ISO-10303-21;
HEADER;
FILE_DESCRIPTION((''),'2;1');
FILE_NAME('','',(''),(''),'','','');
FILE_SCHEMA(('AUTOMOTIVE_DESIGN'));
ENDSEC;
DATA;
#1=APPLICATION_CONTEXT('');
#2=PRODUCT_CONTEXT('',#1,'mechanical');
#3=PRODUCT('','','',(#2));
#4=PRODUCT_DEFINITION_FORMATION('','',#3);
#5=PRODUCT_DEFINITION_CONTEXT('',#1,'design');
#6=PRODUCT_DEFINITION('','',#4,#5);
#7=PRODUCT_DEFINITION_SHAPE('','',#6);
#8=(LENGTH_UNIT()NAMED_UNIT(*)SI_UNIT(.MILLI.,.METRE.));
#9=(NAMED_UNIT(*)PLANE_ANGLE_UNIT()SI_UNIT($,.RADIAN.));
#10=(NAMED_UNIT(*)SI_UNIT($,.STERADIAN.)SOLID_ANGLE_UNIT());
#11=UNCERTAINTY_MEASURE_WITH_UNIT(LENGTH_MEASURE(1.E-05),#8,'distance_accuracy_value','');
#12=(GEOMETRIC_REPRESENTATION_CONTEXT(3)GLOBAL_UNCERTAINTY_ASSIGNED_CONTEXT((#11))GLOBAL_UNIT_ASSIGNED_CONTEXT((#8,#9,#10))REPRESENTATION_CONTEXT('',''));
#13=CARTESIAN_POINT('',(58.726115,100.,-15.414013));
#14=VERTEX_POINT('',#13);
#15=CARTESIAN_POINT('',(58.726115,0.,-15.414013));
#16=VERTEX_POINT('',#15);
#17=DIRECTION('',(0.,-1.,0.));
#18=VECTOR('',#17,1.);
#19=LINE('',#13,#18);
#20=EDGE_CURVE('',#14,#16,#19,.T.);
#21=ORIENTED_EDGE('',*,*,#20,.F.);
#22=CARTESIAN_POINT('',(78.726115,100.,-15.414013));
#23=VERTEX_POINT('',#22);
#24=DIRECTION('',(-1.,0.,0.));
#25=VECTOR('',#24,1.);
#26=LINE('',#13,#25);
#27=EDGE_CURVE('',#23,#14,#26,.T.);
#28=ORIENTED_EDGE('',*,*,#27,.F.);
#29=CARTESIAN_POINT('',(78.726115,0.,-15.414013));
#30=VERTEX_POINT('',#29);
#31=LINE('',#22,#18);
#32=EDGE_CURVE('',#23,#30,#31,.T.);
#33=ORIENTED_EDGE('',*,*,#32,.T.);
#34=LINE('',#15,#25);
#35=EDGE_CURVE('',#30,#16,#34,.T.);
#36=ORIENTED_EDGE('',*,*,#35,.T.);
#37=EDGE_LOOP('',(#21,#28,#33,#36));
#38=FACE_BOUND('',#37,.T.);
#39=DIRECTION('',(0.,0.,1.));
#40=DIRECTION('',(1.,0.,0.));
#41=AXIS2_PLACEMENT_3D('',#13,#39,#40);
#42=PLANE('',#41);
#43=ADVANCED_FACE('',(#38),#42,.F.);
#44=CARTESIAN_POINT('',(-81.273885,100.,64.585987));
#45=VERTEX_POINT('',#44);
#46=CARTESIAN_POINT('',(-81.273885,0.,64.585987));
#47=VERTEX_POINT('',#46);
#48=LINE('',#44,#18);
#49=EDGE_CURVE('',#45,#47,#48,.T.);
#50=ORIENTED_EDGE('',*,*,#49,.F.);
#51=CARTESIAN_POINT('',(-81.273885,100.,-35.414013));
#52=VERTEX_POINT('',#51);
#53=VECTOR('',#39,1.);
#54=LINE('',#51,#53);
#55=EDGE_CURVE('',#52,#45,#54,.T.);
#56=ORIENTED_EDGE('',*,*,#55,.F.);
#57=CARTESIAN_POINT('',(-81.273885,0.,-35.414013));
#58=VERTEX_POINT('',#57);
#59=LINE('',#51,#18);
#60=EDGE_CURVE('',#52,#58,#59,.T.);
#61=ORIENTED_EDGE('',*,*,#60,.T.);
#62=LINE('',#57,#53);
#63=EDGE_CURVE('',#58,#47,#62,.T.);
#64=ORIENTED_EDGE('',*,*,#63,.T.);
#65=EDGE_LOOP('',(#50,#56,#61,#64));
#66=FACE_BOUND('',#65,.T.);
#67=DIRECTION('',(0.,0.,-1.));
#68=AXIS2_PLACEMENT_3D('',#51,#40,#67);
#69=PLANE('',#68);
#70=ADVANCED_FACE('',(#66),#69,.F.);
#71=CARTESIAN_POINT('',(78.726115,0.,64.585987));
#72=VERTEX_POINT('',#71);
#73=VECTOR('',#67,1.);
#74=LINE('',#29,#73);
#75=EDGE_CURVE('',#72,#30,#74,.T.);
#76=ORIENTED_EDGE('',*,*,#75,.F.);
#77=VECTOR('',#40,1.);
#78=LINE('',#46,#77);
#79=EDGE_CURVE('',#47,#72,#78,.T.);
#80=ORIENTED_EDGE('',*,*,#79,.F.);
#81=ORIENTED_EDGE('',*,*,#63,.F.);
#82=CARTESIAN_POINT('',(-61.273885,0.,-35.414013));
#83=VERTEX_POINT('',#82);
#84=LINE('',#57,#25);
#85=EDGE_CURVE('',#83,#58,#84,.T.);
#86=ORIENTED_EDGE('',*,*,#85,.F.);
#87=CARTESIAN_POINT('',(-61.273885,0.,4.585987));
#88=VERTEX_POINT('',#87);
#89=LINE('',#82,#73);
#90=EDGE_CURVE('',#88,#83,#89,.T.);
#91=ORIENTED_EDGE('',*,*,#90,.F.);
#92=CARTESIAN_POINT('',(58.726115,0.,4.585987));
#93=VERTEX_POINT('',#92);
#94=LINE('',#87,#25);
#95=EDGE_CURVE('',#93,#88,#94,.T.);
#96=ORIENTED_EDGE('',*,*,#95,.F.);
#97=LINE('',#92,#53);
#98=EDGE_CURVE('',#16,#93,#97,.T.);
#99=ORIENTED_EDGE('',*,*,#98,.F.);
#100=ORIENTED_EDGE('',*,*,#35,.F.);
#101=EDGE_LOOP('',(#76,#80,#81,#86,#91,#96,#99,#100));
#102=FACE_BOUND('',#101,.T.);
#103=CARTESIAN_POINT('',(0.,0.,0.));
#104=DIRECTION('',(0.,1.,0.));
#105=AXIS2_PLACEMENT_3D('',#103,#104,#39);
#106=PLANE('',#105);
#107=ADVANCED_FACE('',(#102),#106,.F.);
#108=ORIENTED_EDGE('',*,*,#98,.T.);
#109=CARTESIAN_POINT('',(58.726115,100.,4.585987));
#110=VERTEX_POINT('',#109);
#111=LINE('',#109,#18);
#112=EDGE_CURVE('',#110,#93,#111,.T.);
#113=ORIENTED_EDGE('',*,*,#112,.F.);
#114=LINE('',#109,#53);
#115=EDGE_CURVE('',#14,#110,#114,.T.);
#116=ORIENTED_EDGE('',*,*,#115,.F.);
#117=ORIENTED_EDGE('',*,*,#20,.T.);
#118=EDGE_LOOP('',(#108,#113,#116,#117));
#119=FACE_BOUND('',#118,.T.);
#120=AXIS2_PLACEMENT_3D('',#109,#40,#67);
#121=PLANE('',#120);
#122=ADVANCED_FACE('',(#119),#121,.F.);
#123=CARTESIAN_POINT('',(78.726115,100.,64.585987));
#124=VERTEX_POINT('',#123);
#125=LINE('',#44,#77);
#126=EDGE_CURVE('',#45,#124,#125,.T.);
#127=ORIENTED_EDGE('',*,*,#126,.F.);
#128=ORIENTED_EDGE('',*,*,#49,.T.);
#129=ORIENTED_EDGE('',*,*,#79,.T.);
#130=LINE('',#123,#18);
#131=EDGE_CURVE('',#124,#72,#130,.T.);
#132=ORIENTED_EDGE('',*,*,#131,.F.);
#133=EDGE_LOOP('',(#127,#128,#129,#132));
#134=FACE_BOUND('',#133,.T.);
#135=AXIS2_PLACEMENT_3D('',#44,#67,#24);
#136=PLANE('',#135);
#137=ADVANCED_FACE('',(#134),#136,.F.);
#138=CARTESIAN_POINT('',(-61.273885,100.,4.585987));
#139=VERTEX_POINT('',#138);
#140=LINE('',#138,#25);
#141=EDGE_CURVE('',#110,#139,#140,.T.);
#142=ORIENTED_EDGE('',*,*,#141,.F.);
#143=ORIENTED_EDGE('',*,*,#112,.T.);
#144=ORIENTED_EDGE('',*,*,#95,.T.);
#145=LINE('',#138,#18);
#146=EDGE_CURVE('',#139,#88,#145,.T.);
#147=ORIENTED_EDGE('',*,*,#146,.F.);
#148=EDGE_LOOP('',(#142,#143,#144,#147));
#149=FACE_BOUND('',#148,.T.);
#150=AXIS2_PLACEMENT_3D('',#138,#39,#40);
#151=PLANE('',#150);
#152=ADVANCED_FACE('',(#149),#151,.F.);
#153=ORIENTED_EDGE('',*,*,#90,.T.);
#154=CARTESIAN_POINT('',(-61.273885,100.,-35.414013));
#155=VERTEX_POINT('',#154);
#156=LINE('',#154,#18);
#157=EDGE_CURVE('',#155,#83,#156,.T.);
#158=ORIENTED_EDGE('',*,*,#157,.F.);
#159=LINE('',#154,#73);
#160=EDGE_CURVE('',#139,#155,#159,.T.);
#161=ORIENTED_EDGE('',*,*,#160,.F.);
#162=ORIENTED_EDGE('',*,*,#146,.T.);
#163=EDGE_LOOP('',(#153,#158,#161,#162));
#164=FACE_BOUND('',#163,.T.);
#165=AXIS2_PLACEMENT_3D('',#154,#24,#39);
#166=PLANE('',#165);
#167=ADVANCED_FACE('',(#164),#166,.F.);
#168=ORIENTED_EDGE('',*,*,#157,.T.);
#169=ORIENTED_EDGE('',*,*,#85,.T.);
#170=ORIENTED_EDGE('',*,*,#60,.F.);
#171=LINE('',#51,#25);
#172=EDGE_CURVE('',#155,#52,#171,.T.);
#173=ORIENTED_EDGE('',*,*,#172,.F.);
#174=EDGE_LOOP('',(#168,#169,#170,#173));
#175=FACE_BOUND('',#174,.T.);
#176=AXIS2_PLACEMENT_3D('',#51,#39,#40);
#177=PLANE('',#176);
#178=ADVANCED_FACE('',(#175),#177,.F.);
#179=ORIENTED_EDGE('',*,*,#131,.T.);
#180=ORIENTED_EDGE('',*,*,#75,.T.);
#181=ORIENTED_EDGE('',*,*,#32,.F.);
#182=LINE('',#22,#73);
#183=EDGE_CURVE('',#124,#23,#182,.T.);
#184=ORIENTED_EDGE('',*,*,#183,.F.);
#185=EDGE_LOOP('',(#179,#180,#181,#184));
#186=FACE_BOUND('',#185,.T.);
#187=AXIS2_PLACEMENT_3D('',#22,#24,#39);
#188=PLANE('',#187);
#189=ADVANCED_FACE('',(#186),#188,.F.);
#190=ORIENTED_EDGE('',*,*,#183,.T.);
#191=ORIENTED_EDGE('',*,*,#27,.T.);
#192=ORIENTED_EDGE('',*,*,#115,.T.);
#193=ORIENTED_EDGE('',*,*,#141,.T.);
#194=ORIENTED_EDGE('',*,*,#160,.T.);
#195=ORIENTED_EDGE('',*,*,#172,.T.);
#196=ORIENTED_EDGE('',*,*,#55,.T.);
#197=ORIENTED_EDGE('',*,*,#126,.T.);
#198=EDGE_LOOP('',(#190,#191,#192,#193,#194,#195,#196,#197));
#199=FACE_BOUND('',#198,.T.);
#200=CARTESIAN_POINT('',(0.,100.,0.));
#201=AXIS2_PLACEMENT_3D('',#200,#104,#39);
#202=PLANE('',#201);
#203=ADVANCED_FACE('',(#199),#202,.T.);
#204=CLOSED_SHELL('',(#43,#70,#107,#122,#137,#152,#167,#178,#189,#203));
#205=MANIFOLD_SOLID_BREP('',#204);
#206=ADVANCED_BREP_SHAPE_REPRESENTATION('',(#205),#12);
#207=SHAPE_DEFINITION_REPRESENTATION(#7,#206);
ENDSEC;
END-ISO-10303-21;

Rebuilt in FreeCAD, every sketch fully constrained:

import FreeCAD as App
import Part
import Sketcher

V = App.Vector
Q = App.Units.Quantity

doc = App.newDocument("Part")
body = doc.addObject("PartDesign::Body", "Body")

# Sketch on XZ plane
sketch1 = body.newObject("Sketcher::SketchObject", "Sketch")
sketch1.AttachmentSupport = (doc.getObject("XZ_Plane"), [""])
sketch1.MapMode = "FlatFace"
sketch1.addGeometry(Part.LineSegment(V(-61, -35, 0), V(-81, -35, 0)), False)
sketch1.addGeometry(Part.LineSegment(V(-81, -35, 0), V(-81, 65, 0)), False)
sketch1.addGeometry(Part.LineSegment(V(-81, 65, 0), V(79, 65, 0)), False)
sketch1.addGeometry(Part.LineSegment(V(79, 65, 0), V(79, -15, 0)), False)
sketch1.addGeometry(Part.LineSegment(V(79, -15, 0), V(59, -15, 0)), False)
sketch1.addGeometry(Part.LineSegment(V(59, -15, 0), V(59, 5, 0)), False)
sketch1.addGeometry(Part.LineSegment(V(59, 5, 0), V(-61, 5, 0)), False)
sketch1.addGeometry(Part.LineSegment(V(-61, 5, 0), V(-61, -35, 0)), False)
sketch1.addConstraint(Sketcher.Constraint("Coincident", 0, 2, 1, 1))
sketch1.addConstraint(Sketcher.Constraint("Coincident", 1, 2, 2, 1))
sketch1.addConstraint(Sketcher.Constraint("Coincident", 2, 2, 3, 1))
sketch1.addConstraint(Sketcher.Constraint("Coincident", 3, 2, 4, 1))
sketch1.addConstraint(Sketcher.Constraint("Coincident", 4, 2, 5, 1))
sketch1.addConstraint(Sketcher.Constraint("Coincident", 5, 2, 6, 1))
sketch1.addConstraint(Sketcher.Constraint("Coincident", 6, 2, 7, 1))
sketch1.addConstraint(Sketcher.Constraint("Coincident", 7, 2, 0, 1))
sketch1.addConstraint(Sketcher.Constraint("Horizontal", 0))
sketch1.addConstraint(Sketcher.Constraint("Vertical", 1))
sketch1.addConstraint(Sketcher.Constraint("Horizontal", 2))
sketch1.addConstraint(Sketcher.Constraint("Vertical", 3))
sketch1.addConstraint(Sketcher.Constraint("Horizontal", 4))
sketch1.addConstraint(Sketcher.Constraint("Vertical", 5))
sketch1.addConstraint(Sketcher.Constraint("Horizontal", 6))
sketch1.addConstraint(Sketcher.Constraint("Vertical", 7))
sketch1.addConstraint(Sketcher.Constraint("Equal", 0, 4))
sketch1.addConstraint(Sketcher.Constraint("Equal", 4, 5))
sketch1.addConstraint(Sketcher.Constraint("DistanceX", 0, 2, 0, 1, Q("20 mm")))
sketch1.addConstraint(Sketcher.Constraint("DistanceX", 2, 1, 2, 2, Q("160 mm")))
sketch1.addConstraint(Sketcher.Constraint("DistanceY", 1, 1, 1, 2, Q("100 mm")))
sketch1.addConstraint(Sketcher.Constraint("DistanceY", 3, 2, 3, 1, Q("80 mm")))
sketch1.addConstraint(Sketcher.Constraint("DistanceX", 0, 2, -1, 1, Q("81.273885 mm")))
sketch1.addConstraint(Sketcher.Constraint("DistanceY", 0, 2, -1, 1, Q("35.414013 mm")))
pad1 = body.newObject("PartDesign::Pad", "Pad")
pad1.Profile = sketch1
pad1.Length = 100
pad1.Reversed = True

doc.recompute()
